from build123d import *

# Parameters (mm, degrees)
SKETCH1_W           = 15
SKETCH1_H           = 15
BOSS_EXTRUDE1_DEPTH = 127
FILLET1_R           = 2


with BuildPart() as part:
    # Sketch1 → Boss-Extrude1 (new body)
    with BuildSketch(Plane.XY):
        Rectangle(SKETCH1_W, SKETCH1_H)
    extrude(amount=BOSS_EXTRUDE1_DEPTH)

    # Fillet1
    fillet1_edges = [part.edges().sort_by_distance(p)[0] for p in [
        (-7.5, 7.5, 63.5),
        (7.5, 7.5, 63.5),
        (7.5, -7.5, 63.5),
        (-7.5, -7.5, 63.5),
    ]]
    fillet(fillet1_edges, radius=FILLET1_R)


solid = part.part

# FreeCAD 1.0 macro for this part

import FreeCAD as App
import Part
import Sketcher

V = App.Vector


def edges_at(feature, points):
    """Names of the edges that pass closest to the given points."""
    edges = feature.Shape.Edges
    near = lambda p: min(range(len(edges)), key=lambda i: edges[i].distToShape(Part.Vertex(*p))[0])
    return sorted({f"Edge{near(p) + 1}" for p in points})

doc = App.newDocument("Part")
params = doc.addObject("Spreadsheet::Sheet", "Params")
for row, (alias, value) in enumerate([
    ("sketch1_width", "15 mm"),
    ("pad1_length", "127 mm"),
    ("fillet_radius", "2 mm"),
], start=1):
    params.set(f"A{row}", alias)
    params.set(f"B{row}", "=" + value)
    params.setAlias(f"B{row}", alias)

body = doc.addObject("PartDesign::Body", "Body")

# Sketch on XY plane
sketch1 = body.newObject("Sketcher::SketchObject", "Sketch")
sketch1.AttachmentSupport = (doc.getObject("XY_Plane"), [""])
sketch1.MapMode = "FlatFace"
sketch1.addGeometry([
    Part.LineSegment(V(-7.5, 7.5, 0), V(-7.5, -7.5, 0)),
    Part.LineSegment(V(-7.5, -7.5, 0), V(7.5, -7.5, 0)),
    Part.LineSegment(V(7.5, -7.5, 0), V(7.5, 7.5, 0)),
    Part.LineSegment(V(7.5, 7.5, 0), V(-7.5, 7.5, 0)),
], False)
sketch1.addConstraint([
    Sketcher.Constraint("Coincident", 0, 2, 1, 1),
    Sketcher.Constraint("Coincident", 1, 2, 2, 1),
    Sketcher.Constraint("Coincident", 2, 2, 3, 1),
    Sketcher.Constraint("Coincident", 3, 2, 0, 1),
    Sketcher.Constraint("Vertical", 0),
    Sketcher.Constraint("Horizontal", 1),
    Sketcher.Constraint("Vertical", 2),
    Sketcher.Constraint("Horizontal", 3),
    Sketcher.Constraint("Symmetric", 0, 2, 2, 2, -1, 1),
    Sketcher.Constraint("Equal", 3, 0),
    Sketcher.Constraint("DistanceX", 1, 1, 1, 2, 15.0),
])
sketch1.setExpression("Constraints[10]", "Params.sketch1_width")
pad1 = body.newObject("PartDesign::Pad", "Pad")
pad1.Profile = sketch1
pad1.setExpression("Length", "Params.pad1_length")
doc.recompute()

fillet = body.newObject("PartDesign::Fillet", "Fillet")
fillet.Base = (pad1, edges_at(pad1, [
    (-7.5, 7.5, 63.5),
    (7.5, 7.5, 63.5),
    (7.5, -7.5, 63.5),
    (-7.5, -7.5, 63.5),
]))
fillet.setExpression("Radius", "Params.fillet_radius")

doc.recompute()
